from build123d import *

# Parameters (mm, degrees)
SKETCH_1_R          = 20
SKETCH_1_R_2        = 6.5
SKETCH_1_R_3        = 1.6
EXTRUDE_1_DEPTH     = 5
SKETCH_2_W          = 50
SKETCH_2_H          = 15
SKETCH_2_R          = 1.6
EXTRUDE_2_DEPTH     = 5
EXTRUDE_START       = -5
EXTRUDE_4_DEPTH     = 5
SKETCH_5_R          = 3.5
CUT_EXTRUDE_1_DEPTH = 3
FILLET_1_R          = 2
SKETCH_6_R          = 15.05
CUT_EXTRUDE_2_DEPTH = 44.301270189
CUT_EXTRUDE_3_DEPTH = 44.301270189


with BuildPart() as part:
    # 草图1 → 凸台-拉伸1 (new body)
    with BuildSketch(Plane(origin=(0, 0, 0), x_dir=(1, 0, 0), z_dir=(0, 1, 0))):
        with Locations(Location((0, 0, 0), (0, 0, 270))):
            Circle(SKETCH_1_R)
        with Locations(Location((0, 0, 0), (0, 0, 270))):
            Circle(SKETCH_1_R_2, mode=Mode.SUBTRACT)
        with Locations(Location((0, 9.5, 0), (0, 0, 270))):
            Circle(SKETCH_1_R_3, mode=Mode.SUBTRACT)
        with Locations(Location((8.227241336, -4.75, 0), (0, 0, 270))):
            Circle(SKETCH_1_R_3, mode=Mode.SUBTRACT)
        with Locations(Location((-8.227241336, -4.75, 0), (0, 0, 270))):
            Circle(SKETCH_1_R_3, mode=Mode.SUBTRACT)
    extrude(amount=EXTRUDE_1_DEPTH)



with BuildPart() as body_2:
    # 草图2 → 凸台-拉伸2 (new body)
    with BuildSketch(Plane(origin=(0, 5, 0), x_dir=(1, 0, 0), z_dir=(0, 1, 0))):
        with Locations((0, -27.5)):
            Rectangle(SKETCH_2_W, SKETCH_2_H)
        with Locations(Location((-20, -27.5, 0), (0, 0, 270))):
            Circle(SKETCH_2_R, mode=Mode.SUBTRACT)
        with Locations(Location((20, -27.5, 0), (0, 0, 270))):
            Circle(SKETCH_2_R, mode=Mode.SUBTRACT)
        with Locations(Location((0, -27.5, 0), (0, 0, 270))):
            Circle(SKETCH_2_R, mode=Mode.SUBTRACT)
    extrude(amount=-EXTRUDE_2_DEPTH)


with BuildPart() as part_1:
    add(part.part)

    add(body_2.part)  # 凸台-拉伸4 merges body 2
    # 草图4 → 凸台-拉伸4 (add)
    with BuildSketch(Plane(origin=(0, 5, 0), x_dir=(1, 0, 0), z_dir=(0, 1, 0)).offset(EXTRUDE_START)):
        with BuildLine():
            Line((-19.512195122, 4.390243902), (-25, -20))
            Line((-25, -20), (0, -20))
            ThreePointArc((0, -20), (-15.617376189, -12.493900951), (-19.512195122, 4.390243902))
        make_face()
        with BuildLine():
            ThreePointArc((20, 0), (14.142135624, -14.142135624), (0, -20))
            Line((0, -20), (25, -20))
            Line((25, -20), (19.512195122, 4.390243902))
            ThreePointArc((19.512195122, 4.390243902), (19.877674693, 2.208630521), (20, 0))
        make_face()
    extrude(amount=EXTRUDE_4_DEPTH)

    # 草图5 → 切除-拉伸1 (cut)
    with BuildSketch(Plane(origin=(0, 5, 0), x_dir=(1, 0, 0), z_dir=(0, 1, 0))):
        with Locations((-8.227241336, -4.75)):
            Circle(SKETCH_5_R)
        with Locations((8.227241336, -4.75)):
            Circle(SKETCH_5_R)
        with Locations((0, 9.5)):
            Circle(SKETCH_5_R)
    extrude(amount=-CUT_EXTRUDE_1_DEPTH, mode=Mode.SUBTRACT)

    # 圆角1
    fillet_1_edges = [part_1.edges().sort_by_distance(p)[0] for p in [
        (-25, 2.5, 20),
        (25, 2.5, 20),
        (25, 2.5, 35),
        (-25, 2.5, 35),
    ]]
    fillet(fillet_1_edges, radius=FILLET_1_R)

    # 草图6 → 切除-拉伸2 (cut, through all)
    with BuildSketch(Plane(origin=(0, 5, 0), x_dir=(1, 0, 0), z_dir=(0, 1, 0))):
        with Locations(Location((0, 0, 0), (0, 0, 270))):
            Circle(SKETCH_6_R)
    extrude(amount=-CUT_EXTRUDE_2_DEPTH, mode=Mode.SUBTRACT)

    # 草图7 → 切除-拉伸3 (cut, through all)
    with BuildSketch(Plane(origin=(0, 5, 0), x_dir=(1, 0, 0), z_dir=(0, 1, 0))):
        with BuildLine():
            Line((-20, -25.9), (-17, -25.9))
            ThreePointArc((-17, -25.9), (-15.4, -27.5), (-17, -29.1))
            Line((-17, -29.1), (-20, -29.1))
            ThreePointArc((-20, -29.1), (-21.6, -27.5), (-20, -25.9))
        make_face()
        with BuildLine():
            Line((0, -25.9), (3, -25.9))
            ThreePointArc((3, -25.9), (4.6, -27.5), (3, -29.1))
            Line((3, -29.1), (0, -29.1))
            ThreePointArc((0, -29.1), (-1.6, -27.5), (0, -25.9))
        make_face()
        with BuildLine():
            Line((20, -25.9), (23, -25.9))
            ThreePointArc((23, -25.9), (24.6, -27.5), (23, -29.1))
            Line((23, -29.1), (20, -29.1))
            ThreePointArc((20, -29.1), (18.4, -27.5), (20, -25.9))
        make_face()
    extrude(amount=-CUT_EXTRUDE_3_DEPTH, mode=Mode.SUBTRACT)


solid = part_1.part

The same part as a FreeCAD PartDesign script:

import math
import FreeCAD as App
import Part
import Sketcher
Q = App.Units.Quantity


def edges_at(feature, points):
    """Names of the edges that pass closest to the given points."""
    edges = feature.Shape.Edges
    near = lambda p: min(range(len(edges)), key=lambda i: edges[i].distToShape(Part.Vertex(*p))[0])
    return sorted({f"Edge{near(p) + 1}" for p in points})

doc = App.newDocument("Part")
body = doc.addObject("PartDesign::Body", "Body")

# Sketch on XZ plane
sketch1 = body.newObject("Sketcher::SketchObject", "Sketch")
sketch1.AttachmentSupport = (doc.getObject("XZ_Plane"), [""])
sketch1.MapMode = "FlatFace"
sketch1.addGeometry([
    Part.Circle(App.Vector(0, 0, 0), App.Vector(0, 0, 1), 20),  # 0
    Part.Circle(App.Vector(0, -9.5, 0), App.Vector(0, 0, 1), 1.6),  # 1
    Part.Circle(App.Vector(-8.2, 4.8, 0), App.Vector(0, 0, 1), 1.6),  # 2
    Part.Circle(App.Vector(0, 0, 0), App.Vector(0, 0, 1), 6.5),  # 3
    Part.Circle(App.Vector(8.2, 4.8, 0), App.Vector(0, 0, 1), 1.6),  # 4
], False)
sketch1.addConstraint([
    Sketcher.Constraint("Coincident", 0, 3, -1, 1),
    Sketcher.Constraint("Coincident", 3, 3, -1, 1),
    Sketcher.Constraint("Equal", 1, 2),
    Sketcher.Constraint("Equal", 2, 4),
    Sketcher.Constraint("Symmetric", 2, 3, 4, 3, -2),
    Sketcher.Constraint("PointOnObject", 1, 3, -2),
    Sketcher.Constraint("Diameter", 0, Q("40 mm")),
    Sketcher.Constraint("Diameter", 3, Q("13 mm")),
    Sketcher.Constraint("Diameter", 1, Q("3.2 mm")),
    Sketcher.Constraint("DistanceY", 1, 3, -1, 1, Q("9.5 mm")),
    Sketcher.Constraint("DistanceY", -1, 1, 2, 3, Q("4.75 mm")),
    Sketcher.Constraint("DistanceX", 2, 3, -1, 1, Q("8.227241 mm")),
])
pad1 = body.newObject("PartDesign::Pad", "Pad")
pad1.Profile = sketch1
pad1.Length = 5
pad1.Reversed = True
body2 = doc.addObject("PartDesign::Body", "Body001")

# Sketch on XZ plane
sketch2 = body2.newObject("Sketcher::SketchObject", "Sketch001")
sketch2.AttachmentSupport = (doc.getObject("XZ_Plane001"), [""])
sketch2.MapMode = "FlatFace"
sketch2.AttachmentOffset = App.Placement(App.Vector(0, 0, -5), App.Rotation())
sketch2.addGeometry([
    Part.LineSegment(App.Vector(-25, 20, 0), App.Vector(-25, 35, 0)),  # 0
    Part.LineSegment(App.Vector(-25, 35, 0), App.Vector(25, 35, 0)),  # 1
    Part.LineSegment(App.Vector(25, 35, 0), App.Vector(25, 20, 0)),  # 2
    Part.LineSegment(App.Vector(25, 20, 0), App.Vector(-25, 20, 0)),  # 3
    Part.Circle(App.Vector(-20, 27.5, 0), App.Vector(0, 0, 1), 1.6),  # 4
    Part.Circle(App.Vector(0, 27.5, 0), App.Vector(0, 0, 1), 1.6),  # 5
    Part.Circle(App.Vector(20, 27.5, 0), App.Vector(0, 0, 1), 1.6),  # 6
], False)
sketch2.addConstraint([
    Sketcher.Constraint("Coincident", 0, 2, 1, 1),
    Sketcher.Constraint("Coincident", 1, 2, 2, 1),
    Sketcher.Constraint("Coincident", 2, 2, 3, 1),
    Sketcher.Constraint("Coincident", 3, 2, 0, 1),
    Sketcher.Constraint("Vertical", 0),
    Sketcher.Constraint("Horizontal", 1),
    Sketcher.Constraint("Vertical", 2),
    Sketcher.Constraint("Horizontal", 3),
    Sketcher.Constraint("Equal", 4, 5),
    Sketcher.Constraint("Equal", 5, 6),
    Sketcher.Constraint("Symmetric", 4, 3, 6, 3, -2),
    Sketcher.Constraint("PointOnObject", 5, 3, -2),
    Sketcher.Constraint("Horizontal", 4, 3, 5, 3),
    Sketcher.Constraint("Diameter", 4, Q("3.2 mm")),
    Sketcher.Constraint("DistanceX", 1, 1, 1, 2, Q("50 mm")),
    Sketcher.Constraint("DistanceY", 0, 1, 0, 2, Q("15 mm")),
    Sketcher.Constraint("DistanceX", 4, 3, -1, 1, Q("20 mm")),
    Sketcher.Constraint("DistanceX", 0, 2, -1, 1, Q("25 mm")),
    Sketcher.Constraint("DistanceY", -1, 1, 0, 2, Q("35 mm")),
    Sketcher.Constraint("DistanceY", -1, 1, 4, 3, Q("27.5 mm")),
])
pad2 = body2.newObject("PartDesign::Pad", "Pad001")
pad2.Profile = sketch2
pad2.Length = 5
body.AllowCompound = True
doc.recompute()

boolean = body.newObject("PartDesign::Boolean", "Boolean")
boolean.Type = "Fuse"
boolean.addObjects([body2])

# Sketch on XZ plane
sketch3 = body.newObject("Sketcher::SketchObject", "Sketch002")
sketch3.AttachmentSupport = (doc.getObject("XZ_Plane"), [""])
sketch3.MapMode = "FlatFace"
sketch3.addGeometry([
    Part.LineSegment(App.Vector(-19.5, -4.4, 0), App.Vector(-25, 20, 0)),  # 0
    Part.LineSegment(App.Vector(-25, 20, 0), App.Vector(0, 20, 0)),  # 1
    Part.ArcOfCircle(Part.Circle(App.Vector(0, 0, 0), App.Vector(0, 0, 1), 20), math.radians(90), math.radians(193)),  # 2
    Part.ArcOfCircle(Part.Circle(App.Vector(0, 0, 0), App.Vector(0, 0, 1), 20), math.radians(0), math.radians(90)),  # 3
    Part.LineSegment(App.Vector(0, 20, 0), App.Vector(25, 20, 0)),  # 4
    Part.LineSegment(App.Vector(25, 20, 0), App.Vector(19.5, -4.4, 0)),  # 5
    Part.ArcOfCircle(Part.Circle(App.Vector(0, 0, 0), App.Vector(0, 0, 1), 20), math.radians(-12.68), math.radians(0)),  # 6
], False)
sketch3.addConstraint([
    Sketcher.Constraint("Coincident", 0, 2, 1, 1),
    Sketcher.Constraint("Tangent", 1, 2, 2, 1),
    Sketcher.Constraint("Tangent", 2, 2, 0, 1),
    Sketcher.Constraint("Tangent", 3, 2, 4, 1),
    Sketcher.Constraint("Coincident", 4, 2, 5, 1),
    Sketcher.Constraint("Tangent", 5, 2, 6, 1),
    Sketcher.Constraint("Tangent", 6, 2, 3, 1),
    Sketcher.Constraint("Horizontal", 1),
    Sketcher.Constraint("Horizontal", 4),
    Sketcher.Constraint("Coincident", 2, 3, -1, 1),
    Sketcher.Constraint("Coincident", 3, 3, -1, 1),
    Sketcher.Constraint("Equal", 2, 3),
    Sketcher.Constraint("Equal", 3, 6),
    Sketcher.Constraint("PointOnObject", 6, 2, -1),
    Sketcher.Constraint("Horizontal", 2, 2, 5, 2),
    Sketcher.Constraint("Radius", 2, Q("20 mm")),
    Sketcher.Constraint("DistanceX", 1, 1, 1, 2, Q("25 mm")),
])
pad3 = body.newObject("PartDesign::Pad", "Pad002")
pad3.Profile = sketch3
pad3.Length = 5
pad3.Reversed = True

# Sketch on XZ plane
sketch4 = body.newObject("Sketcher::SketchObject", "Sketch003")
sketch4.AttachmentSupport = (doc.getObject("XZ_Plane"), [""])
sketch4.MapMode = "FlatFace"
sketch4.AttachmentOffset = App.Placement(App.Vector(0, 0, -5), App.Rotation())
sketch4.addGeometry([
    Part.Circle(App.Vector(-8.2, 4.8, 0), App.Vector(0, 0, 1), 3.5),
    Part.Circle(App.Vector(8.2, 4.8, 0), App.Vector(0, 0, 1), 3.5),
    Part.Circle(App.Vector(0, -9.5, 0), App.Vector(0, 0, 1), 3.5),
], False)
sketch4.addConstraint([
    Sketcher.Constraint("Equal", 0, 1),
    Sketcher.Constraint("Equal", 1, 2),
    Sketcher.Constraint("Symmetric", 0, 3, 1, 3, -2),
    Sketcher.Constraint("PointOnObject", 2, 3, -2),
    Sketcher.Constraint("Diameter", 0, Q("7 mm")),
    Sketcher.Constraint("DistanceY", 2, 3, -1, 1, Q("9.5 mm")),
    Sketcher.Constraint("DistanceY", -1, 1, 0, 3, Q("4.75 mm")),
    Sketcher.Constraint("DistanceX", 0, 3, -1, 1, Q("8.227241 mm")),
])
pocket1 = body.newObject("PartDesign::Pocket", "Pocket")
pocket1.Profile = sketch4
pocket1.Length = 3
pocket1.Reversed = True
doc.recompute()

fillet = body.newObject("PartDesign::Fillet", "Fillet")
fillet.Base = (pocket1, edges_at(pocket1, [
    (-25, 2.5, 20),
    (25, 2.5, 20),
    (25, 2.5, 35),
    (-25, 2.5, 35),
]))
fillet.Radius = 2

# Sketch on XZ plane
sketch5 = body.newObject("Sketcher::SketchObject", "Sketch004")
sketch5.AttachmentSupport = (doc.getObject("XZ_Plane"), [""])
sketch5.MapMode = "FlatFace"
sketch5.AttachmentOffset = App.Placement(App.Vector(0, 0, -5), App.Rotation())
sketch5.addGeometry(Part.Circle(App.Vector(0, 0, 0), App.Vector(0, 0, 1), 15), False)
sketch5.addConstraint([
    Sketcher.Constraint("Coincident", 0, 3, -1, 1),
    Sketcher.Constraint("Diameter", 0, Q("30.1 mm")),
])
pocket2 = body.newObject("PartDesign::Pocket", "Pocket001")
pocket2.Profile = sketch5
pocket2.Type = "ThroughAll"
pocket2.Reversed = True

# Sketch on XZ plane
sketch6 = body.newObject("Sketcher::SketchObject", "Sketch005")
sketch6.AttachmentSupport = (doc.getObject("XZ_Plane"), [""])
sketch6.MapMode = "FlatFace"
sketch6.AttachmentOffset = App.Placement(App.Vector(0, 0, -5), App.Rotation())
sketch6.addGeometry([
    Part.LineSegment(App.Vector(-17, 25.9, 0), App.Vector(-20, 25.9, 0)),  # 0
    Part.ArcOfCircle(Part.Circle(App.Vector(-20, 27.5, 0), App.Vector(0, 0, 1), 1.6), math.radians(90), math.radians(270)),  # 1
    Part.LineSegment(App.Vector(-20, 29.1, 0), App.Vector(-17, 29.1, 0)),  # 2
    Part.ArcOfCircle(Part.Circle(App.Vector(-17, 27.5, 0), App.Vector(0, 0, 1), 1.6), math.radians(-90), math.radians(90)),  # 3
    Part.LineSegment(App.Vector(3, 25.9, 0), App.Vector(0, 25.9, 0)),  # 4
    Part.ArcOfCircle(Part.Circle(App.Vector(0, 27.5, 0), App.Vector(0, 0, 1), 1.6), math.radians(90), math.radians(270)),  # 5
    Part.LineSegment(App.Vector(0, 29.1, 0), App.Vector(3, 29.1, 0)),  # 6
    Part.ArcOfCircle(Part.Circle(App.Vector(3, 27.5, 0), App.Vector(0, 0, 1), 1.6), math.radians(-90), math.radians(90)),  # 7
    Part.LineSegment(App.Vector(23, 25.9, 0), App.Vector(20, 25.9, 0)),  # 8
    Part.ArcOfCircle(Part.Circle(App.Vector(20, 27.5, 0), App.Vector(0, 0, 1), 1.6), math.radians(90), math.radians(270)),  # 9
    Part.LineSegment(App.Vector(20, 29.1, 0), App.Vector(23, 29.1, 0)),  # 10
    Part.ArcOfCircle(Part.Circle(App.Vector(23, 27.5, 0), App.Vector(0, 0, 1), 1.6), math.radians(-90), math.radians(90)),  # 11
], False)
sketch6.addConstraint([
    Sketcher.Constraint("Tangent", 0, 2, 1, 2),
    Sketcher.Constraint("Tangent", 1, 1, 2, 1),
    Sketcher.Constraint("Tangent", 2, 2, 3, 2),
    Sketcher.Constraint("Tangent", 3, 1, 0, 1),
    Sketcher.Constraint("Tangent", 4, 2, 5, 2),
    Sketcher.Constraint("Tangent", 5, 1, 6, 1),
    Sketcher.Constraint("Tangent", 6, 2, 7, 2),
    Sketcher.Constraint("Tangent", 7, 1, 4, 1),
    Sketcher.Constraint("Tangent", 8, 2, 9, 2),
    Sketcher.Constraint("Tangent", 9, 1, 10, 1),
    Sketcher.Constraint("Tangent", 10, 2, 11, 2),
    Sketcher.Constraint("Tangent", 11, 1, 8, 1),
    Sketcher.Constraint("Horizontal", 0),
    Sketcher.Constraint("Horizontal", 2),
    Sketcher.Constraint("Horizontal", 4),
    Sketcher.Constraint("Horizontal", 6),
    Sketcher.Constraint("Horizontal", 8),
    Sketcher.Constraint("Horizontal", 10),
    Sketcher.Constraint("Equal", 3, 5),
    Sketcher.Constraint("Equal", 7, 9),
    Sketcher.Constraint("Symmetric", 1, 3, 9, 3, -2),
    Sketcher.Constraint("PointOnObject", 5, 3, -2),
    Sketcher.Constraint("Horizontal", 3, 3, 5, 3),
    Sketcher.Constraint("Equal", 2, 4),
    Sketcher.Constraint("Equal", 6, 8),
    Sketcher.Constraint("Radius", 1, Q("1.6 mm")),
    Sketcher.Constraint("DistanceX", 0, 2, 0, 1, Q("3 mm")),
    Sketcher.Constraint("DistanceX", 1, 3, -1, 1, Q("20 mm")),
    Sketcher.Constraint("DistanceY", -1, 1, 1, 3, Q("27.5 mm")),
])
pocket3 = body.newObject("PartDesign::Pocket", "Pocket002")
pocket3.Profile = sketch6
pocket3.Type = "ThroughAll"
pocket3.Reversed = True

doc.recompute()
